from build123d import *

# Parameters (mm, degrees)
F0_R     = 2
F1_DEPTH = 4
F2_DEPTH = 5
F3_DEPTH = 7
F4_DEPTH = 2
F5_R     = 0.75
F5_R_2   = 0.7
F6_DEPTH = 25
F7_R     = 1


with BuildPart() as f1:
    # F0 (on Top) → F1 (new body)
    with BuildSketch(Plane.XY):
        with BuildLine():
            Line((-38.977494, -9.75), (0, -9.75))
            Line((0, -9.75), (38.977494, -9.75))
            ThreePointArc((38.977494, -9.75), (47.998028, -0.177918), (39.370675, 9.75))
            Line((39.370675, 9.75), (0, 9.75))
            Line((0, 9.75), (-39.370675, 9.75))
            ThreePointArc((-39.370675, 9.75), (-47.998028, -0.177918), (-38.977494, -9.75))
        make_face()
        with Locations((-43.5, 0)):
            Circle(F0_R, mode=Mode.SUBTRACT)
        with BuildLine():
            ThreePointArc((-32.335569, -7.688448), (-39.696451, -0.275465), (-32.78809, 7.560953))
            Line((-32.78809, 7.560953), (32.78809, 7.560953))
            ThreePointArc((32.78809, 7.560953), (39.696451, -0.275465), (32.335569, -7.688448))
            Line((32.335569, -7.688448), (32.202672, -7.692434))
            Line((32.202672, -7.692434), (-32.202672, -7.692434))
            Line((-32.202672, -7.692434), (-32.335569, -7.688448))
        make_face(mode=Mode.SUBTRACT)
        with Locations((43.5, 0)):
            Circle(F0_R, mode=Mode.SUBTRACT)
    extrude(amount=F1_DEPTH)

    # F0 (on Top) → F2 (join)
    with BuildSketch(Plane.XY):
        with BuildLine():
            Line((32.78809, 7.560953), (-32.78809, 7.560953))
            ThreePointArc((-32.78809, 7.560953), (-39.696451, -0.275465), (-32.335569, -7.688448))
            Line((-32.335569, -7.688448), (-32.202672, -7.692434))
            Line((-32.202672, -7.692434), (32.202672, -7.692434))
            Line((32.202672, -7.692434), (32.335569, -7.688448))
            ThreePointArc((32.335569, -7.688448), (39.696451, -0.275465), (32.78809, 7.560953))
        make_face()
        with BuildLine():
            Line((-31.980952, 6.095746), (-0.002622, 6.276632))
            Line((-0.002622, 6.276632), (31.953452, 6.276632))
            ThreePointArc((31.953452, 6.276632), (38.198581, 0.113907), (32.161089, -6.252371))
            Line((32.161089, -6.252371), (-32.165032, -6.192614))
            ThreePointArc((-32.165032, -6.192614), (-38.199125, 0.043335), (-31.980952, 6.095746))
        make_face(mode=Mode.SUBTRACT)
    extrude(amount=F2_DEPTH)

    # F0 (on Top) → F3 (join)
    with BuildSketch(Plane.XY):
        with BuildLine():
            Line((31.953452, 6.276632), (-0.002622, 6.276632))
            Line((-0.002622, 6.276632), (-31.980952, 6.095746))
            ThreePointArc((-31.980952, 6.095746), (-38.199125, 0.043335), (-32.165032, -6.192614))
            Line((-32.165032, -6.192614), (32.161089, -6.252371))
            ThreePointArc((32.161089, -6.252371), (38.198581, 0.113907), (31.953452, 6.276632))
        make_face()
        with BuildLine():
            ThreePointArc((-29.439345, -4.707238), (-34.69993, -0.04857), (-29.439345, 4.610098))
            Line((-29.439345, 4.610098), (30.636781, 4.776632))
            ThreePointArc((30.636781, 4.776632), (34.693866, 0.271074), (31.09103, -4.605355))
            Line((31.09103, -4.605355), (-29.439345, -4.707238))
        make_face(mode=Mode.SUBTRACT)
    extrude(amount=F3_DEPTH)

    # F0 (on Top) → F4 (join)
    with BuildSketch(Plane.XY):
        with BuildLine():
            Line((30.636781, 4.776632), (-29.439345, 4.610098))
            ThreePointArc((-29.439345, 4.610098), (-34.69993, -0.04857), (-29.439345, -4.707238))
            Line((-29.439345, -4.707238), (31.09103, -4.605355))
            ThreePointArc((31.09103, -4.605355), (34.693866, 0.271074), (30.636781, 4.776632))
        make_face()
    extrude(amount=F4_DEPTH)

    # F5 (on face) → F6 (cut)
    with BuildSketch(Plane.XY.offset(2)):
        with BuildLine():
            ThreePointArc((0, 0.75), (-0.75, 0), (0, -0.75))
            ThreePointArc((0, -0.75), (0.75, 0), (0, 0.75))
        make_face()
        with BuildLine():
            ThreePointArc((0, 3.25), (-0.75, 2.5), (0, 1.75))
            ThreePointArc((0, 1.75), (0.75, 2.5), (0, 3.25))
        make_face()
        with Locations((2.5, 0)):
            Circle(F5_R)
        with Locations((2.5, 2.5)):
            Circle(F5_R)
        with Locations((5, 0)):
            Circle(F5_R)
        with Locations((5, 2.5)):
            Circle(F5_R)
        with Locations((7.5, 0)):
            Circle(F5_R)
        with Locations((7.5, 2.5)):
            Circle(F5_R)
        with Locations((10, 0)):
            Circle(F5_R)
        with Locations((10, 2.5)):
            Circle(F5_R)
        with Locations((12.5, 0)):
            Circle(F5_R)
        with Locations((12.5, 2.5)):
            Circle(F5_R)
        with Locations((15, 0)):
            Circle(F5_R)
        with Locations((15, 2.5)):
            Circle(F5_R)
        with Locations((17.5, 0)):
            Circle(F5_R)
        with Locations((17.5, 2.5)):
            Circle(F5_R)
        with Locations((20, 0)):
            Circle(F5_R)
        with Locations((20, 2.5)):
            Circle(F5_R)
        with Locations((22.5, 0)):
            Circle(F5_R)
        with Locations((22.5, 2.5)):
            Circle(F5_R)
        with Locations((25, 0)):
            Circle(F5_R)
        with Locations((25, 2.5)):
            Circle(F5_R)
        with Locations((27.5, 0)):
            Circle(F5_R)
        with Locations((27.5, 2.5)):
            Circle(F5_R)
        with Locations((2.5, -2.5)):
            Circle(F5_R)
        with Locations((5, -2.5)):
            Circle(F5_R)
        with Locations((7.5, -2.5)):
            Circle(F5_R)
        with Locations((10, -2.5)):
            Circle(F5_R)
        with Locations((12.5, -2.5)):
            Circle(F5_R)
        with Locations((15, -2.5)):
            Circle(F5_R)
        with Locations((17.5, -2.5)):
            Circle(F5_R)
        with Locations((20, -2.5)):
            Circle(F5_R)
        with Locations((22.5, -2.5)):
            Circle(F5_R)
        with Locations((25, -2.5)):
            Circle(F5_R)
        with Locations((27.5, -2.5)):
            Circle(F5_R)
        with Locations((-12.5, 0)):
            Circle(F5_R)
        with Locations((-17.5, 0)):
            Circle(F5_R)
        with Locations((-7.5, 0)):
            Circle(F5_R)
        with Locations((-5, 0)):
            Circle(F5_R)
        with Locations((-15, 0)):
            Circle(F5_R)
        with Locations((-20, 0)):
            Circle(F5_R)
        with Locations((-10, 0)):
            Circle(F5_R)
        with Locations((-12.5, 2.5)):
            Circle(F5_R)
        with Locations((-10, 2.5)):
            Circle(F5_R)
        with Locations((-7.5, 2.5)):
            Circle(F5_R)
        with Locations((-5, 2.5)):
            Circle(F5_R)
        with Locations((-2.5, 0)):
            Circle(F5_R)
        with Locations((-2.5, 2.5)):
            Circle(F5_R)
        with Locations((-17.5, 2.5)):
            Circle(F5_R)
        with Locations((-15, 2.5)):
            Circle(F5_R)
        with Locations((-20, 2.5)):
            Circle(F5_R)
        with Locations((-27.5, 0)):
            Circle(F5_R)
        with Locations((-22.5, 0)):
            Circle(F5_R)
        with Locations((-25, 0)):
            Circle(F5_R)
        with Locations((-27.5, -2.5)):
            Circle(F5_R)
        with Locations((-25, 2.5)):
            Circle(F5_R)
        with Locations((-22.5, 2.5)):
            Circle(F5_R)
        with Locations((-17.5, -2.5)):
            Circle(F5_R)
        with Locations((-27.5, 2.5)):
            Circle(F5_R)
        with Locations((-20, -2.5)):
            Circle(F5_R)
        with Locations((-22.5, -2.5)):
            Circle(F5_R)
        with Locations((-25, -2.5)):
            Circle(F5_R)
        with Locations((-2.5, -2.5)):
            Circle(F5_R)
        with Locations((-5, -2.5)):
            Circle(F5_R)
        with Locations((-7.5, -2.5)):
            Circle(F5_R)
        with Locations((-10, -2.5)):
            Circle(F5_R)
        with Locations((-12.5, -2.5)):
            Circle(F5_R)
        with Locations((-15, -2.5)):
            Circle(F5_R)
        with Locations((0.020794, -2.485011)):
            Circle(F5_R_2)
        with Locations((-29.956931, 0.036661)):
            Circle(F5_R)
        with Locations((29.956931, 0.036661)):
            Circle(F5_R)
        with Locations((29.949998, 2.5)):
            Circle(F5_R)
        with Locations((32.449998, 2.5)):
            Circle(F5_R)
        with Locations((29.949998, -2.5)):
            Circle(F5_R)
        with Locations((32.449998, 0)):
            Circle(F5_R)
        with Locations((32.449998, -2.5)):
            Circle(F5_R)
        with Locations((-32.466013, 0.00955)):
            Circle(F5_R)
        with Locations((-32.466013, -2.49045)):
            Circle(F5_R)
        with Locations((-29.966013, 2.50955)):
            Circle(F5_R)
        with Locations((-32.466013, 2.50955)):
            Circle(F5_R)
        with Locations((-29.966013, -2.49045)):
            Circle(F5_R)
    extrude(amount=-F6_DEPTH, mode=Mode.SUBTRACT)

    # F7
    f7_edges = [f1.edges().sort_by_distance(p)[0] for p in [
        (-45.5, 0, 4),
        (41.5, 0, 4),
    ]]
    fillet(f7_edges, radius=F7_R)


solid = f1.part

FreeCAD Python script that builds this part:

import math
import FreeCAD as App
import Part
import Sketcher


def edges_at(feature, points):
    """Names of the edges that pass closest to the given points."""
    edges = feature.Shape.Edges
    near = lambda p: min(range(len(edges)), key=lambda i: edges[i].distToShape(Part.Vertex(*p))[0])
    return sorted({f"Edge{near(p) + 1}" for p in points})

doc = App.newDocument("Part")
body = doc.addObject("PartDesign::Body", "Body")

sketch1 = doc.addObject("Sketcher::SketchObject", "Sketch")
body.addObject(sketch1)
sketch1.AttachmentSupport = (doc.XY_Plane, [""])
sketch1.MapMode = "FlatFace"
sketch1.addGeometry([
    Part.LineSegment(App.Vector(-38.977494, -9.75, 0), App.Vector(38.977494, -9.75, 0)),
    Part.ArcOfCircle(Part.Circle(App.Vector(38.199434, 0.019652, 0), App.Vector(0, 0, 1), 9.800586), math.radians(-85.446546), math.radians(83.136335)),
    Part.LineSegment(App.Vector(39.370675, 9.75, 0), App.Vector(-39.370675, 9.75, 0)),
    Part.ArcOfCircle(Part.Circle(App.Vector(-38.199434, 0.019652, 0), App.Vector(0, 0, 1), 9.800586), math.radians(96.863665), math.radians(265.446546)),
    Part.Circle(App.Vector(-43.5, 0, 0), App.Vector(0, 0, 1), 2),
    Part.LineSegment(App.Vector(-32.202672, -7.692434, 0), App.Vector(-32.335569, -7.688448, 0)),
    Part.ArcOfCircle(Part.Circle(App.Vector(-32.054919, -0.048705, 0), App.Vector(0, 0, 1), 7.644896), math.radians(95.503317), math.radians(267.896153)),
    Part.LineSegment(App.Vector(-32.78809, 7.560953, 0), App.Vector(32.78809, 7.560953, 0)),
    Part.ArcOfCircle(Part.Circle(App.Vector(32.054919, -0.048705, 0), App.Vector(0, 0, 1), 7.644896), math.radians(-87.896153), math.radians(84.496683)),
    Part.LineSegment(App.Vector(32.335569, -7.688448, 0), App.Vector(32.202672, -7.692434, 0)),
    Part.LineSegment(App.Vector(32.202672, -7.692434, 0), App.Vector(-32.202672, -7.692434, 0)),
    Part.Circle(App.Vector(43.5, 0, 0), App.Vector(0, 0, 1), 2),
], False)
sketch1.addConstraint([
    Sketcher.Constraint("Coincident", 0, 2, 1, 1),
    Sketcher.Constraint("Coincident", 1, 2, 2, 1),
    Sketcher.Constraint("Coincident", 2, 2, 3, 1),
    Sketcher.Constraint("Coincident", 3, 2, 0, 1),
    Sketcher.Constraint("Coincident", 5, 2, 6, 2),
    Sketcher.Constraint("Coincident", 6, 1, 7, 1),
    Sketcher.Constraint("Coincident", 7, 2, 8, 2),
    Sketcher.Constraint("Coincident", 8, 1, 9, 1),
    Sketcher.Constraint("Coincident", 9, 2, 10, 1),
    Sketcher.Constraint("Coincident", 10, 2, 5, 1),
    Sketcher.Constraint("Horizontal", 0),
    Sketcher.Constraint("Horizontal", 2),
    Sketcher.Constraint("Horizontal", 7),
    Sketcher.Constraint("Horizontal", 10),
    Sketcher.Constraint("Equal", 1, 3),
    Sketcher.Constraint("Equal", 6, 8),
    Sketcher.Constraint("Equal", 4, 11),
    Sketcher.Constraint("Symmetric", 4, 3, 11, 3, -1, 1),
    Sketcher.Constraint("Symmetric", 1, 3, 3, 3, -2),
    Sketcher.Constraint("Symmetric", 6, 3, 8, 3, -2),
    Sketcher.Constraint("PointOnObject", 4, 3, -1),
    Sketcher.Constraint("Horizontal", 5, 2, 8, 1),
    Sketcher.Constraint("Equal", 5, 9),
    Sketcher.Constraint("Diameter", 4, 4.0),
    Sketcher.Constraint("DistanceX", 4, 3, 11, 3, 87.0),
    Sketcher.Constraint("DistanceY", 0, 2, 1, 2, 19.5),
    Sketcher.Constraint("DistanceY", 0, 2, -1, 1, 9.75),
    Sketcher.Constraint("Radius", 1, 9.800586),
    Sketcher.Constraint("Radius", 6, 7.644896),
    Sketcher.Constraint("DistanceX", 0, 1, 0, 2, 77.954988),
    Sketcher.Constraint("DistanceX", 2, 2, 2, 1, 78.74135),
    Sketcher.Constraint("DistanceX", 7, 1, 7, 2, 65.57618),
    Sketcher.Constraint("DistanceY", 5, 2, 3, 3, 7.7081),
    Sketcher.Constraint("DistanceY", 3, 3, 6, 1, 7.541301),
    Sketcher.Constraint("DistanceX", 10, 2, 10, 1, 64.405344),
    Sketcher.Constraint("DistanceX", 6, 3, -1, 1, 32.054919),
    Sketcher.Constraint("DistanceY", 9, 2, 8, 3, 7.643729),
])
pad1 = doc.addObject("PartDesign::Pad", "Pad")
body.addObject(pad1)
pad1.Profile = sketch1
pad1.Length = 4

sketch2 = doc.addObject("Sketcher::SketchObject", "Sketch001")
body.addObject(sketch2)
sketch2.AttachmentSupport = (doc.XY_Plane, [""])
sketch2.MapMode = "FlatFace"
sketch2.addGeometry([
    Part.LineSegment(App.Vector(32.78809, 7.560953, 0), App.Vector(-32.78809, 7.560953, 0)),
    Part.ArcOfCircle(Part.Circle(App.Vector(-32.054919, -0.048705, 0), App.Vector(0, 0, 1), 7.644896), math.radians(95.503317), math.radians(267.896153)),
    Part.LineSegment(App.Vector(-32.335569, -7.688448, 0), App.Vector(-32.202672, -7.692434, 0)),
    Part.LineSegment(App.Vector(-32.202672, -7.692434, 0), App.Vector(32.202672, -7.692434, 0)),
    Part.LineSegment(App.Vector(32.202672, -7.692434, 0), App.Vector(32.335569, -7.688448, 0)),
    Part.ArcOfCircle(Part.Circle(App.Vector(32.054919, -0.048705, 0), App.Vector(0, 0, 1), 7.644896), math.radians(-87.896153), math.radians(84.496683)),
    Part.ArcOfCircle(Part.Circle(App.Vector(-32.054918, -0.048705, 0), App.Vector(0, 0, 1), 6.144896), math.radians(89.310311), math.radians(268.973232)),
    Part.LineSegment(App.Vector(-31.980952, 6.095746, 0), App.Vector(-0.002622, 6.276632, 0)),
    Part.LineSegment(App.Vector(-0.002622, 6.276632, 0), App.Vector(31.953452, 6.276632, 0)),
    Part.ArcOfCircle(Part.Circle(App.Vector(31.932844, 0.010068, 0), App.Vector(0, 0, 1), 6.266597), math.radians(-87.912683), math.radians(89.811579)),
    Part.LineSegment(App.Vector(32.161089, -6.252371, 0), App.Vector(-32.165032, -6.192614, 0)),
], False)
sketch2.addConstraint([
    Sketcher.Constraint("Coincident", 0, 2, 1, 1),
    Sketcher.Constraint("Coincident", 1, 2, 2, 1),
    Sketcher.Constraint("Coincident", 2, 2, 3, 1),
    Sketcher.Constraint("Coincident", 3, 2, 4, 1),
    Sketcher.Constraint("Coincident", 4, 2, 5, 1),
    Sketcher.Constraint("Coincident", 5, 2, 0, 1),
    Sketcher.Constraint("Coincident", 6, 1, 7, 1),
    Sketcher.Constraint("Coincident", 7, 2, 8, 1),
    Sketcher.Constraint("Coincident", 8, 2, 9, 2),
    Sketcher.Constraint("Coincident", 9, 1, 10, 1),
    Sketcher.Constraint("Coincident", 10, 2, 6, 2),
    Sketcher.Constraint("Horizontal", 0),
    Sketcher.Constraint("Horizontal", 3),
    Sketcher.Constraint("Horizontal", 8),
    Sketcher.Constraint("Coincident", 6, 3, 1, 3),
    Sketcher.Constraint("Equal", 1, 5),
    Sketcher.Constraint("Symmetric", 1, 3, 5, 3, -2),
    Sketcher.Constraint("Horizontal", 1, 2, 4, 2),
    Sketcher.Constraint("Equal", 2, 4),
    Sketcher.Constraint("Radius", 1, 7.644896),
    Sketcher.Constraint("Radius", 6, 6.144896),
    Sketcher.Constraint("Radius", 9, 6.266597),
    Sketcher.Constraint("DistanceX", 0, 2, 0, 1, 65.57618),
    Sketcher.Constraint("DistanceY", 1, 2, 0, 2, 15.249401),
    Sketcher.Constraint("Distance", 7, 31.978842),
    Sketcher.Constraint("Distance", 10, 64.326149),
    Sketcher.Constraint("DistanceX", 3, 1, 3, 2, 64.405344),
    Sketcher.Constraint("DistanceX", 8, 1, 8, 2, 31.956074),
    Sketcher.Constraint("DistanceX", 1, 3, -1, 1, 32.054919),
    Sketcher.Constraint("DistanceY", -1, 1, 9, 3, 0.010068),
    Sketcher.Constraint("DistanceY", 1, 2, -1, 1, 7.688448),
    Sketcher.Constraint("DistanceX", 6, 1, -1, 1, 31.980952),
    Sketcher.Constraint("DistanceX", -1, 1, 9, 1, 32.161089),
    Sketcher.Constraint("DistanceY", 9, 1, -1, 1, 6.252371),
    Sketcher.Constraint("DistanceY", 2, 2, 1, 3, 7.643729),
])
pad2 = doc.addObject("PartDesign::Pad", "Pad001")
body.addObject(pad2)
pad2.Profile = sketch2
pad2.Length = 5

sketch3 = doc.addObject("Sketcher::SketchObject", "Sketch002")
body.addObject(sketch3)
sketch3.AttachmentSupport = (doc.XY_Plane, [""])
sketch3.MapMode = "FlatFace"
sketch3.addGeometry([
    Part.LineSegment(App.Vector(31.953452, 6.276632, 0), App.Vector(-0.002622, 6.276632, 0)),
    Part.LineSegment(App.Vector(-0.002622, 6.276632, 0), App.Vector(-31.980952, 6.095746, 0)),
    Part.ArcOfCircle(Part.Circle(App.Vector(-32.054918, -0.048705, 0), App.Vector(0, 0, 1), 6.144896), math.radians(89.310311), math.radians(268.973232)),
    Part.LineSegment(App.Vector(-32.165032, -6.192614, 0), App.Vector(32.161089, -6.252371, 0)),
    Part.ArcOfCircle(Part.Circle(App.Vector(31.932844, 0.010068, 0), App.Vector(0, 0, 1), 6.266597), math.radians(-87.912683), math.radians(89.811579)),
    Part.LineSegment(App.Vector(31.09103, -4.605355, 0), App.Vector(-29.439345, -4.707238, 0)),
    Part.ArcOfCircle(Part.Circle(App.Vector(-30.006826, -0.04857, 0), App.Vector(0, 0, 1), 4.693104), math.radians(83.054907), math.radians(276.945093)),
    Part.LineSegment(App.Vector(-29.439345, 4.610098, 0), App.Vector(30.636781, 4.776632, 0)),
    Part.ArcOfCircle(Part.Circle(App.Vector(29.906086, 0.039264, 0), App.Vector(0, 0, 1), 4.793389), math.radians(-75.687888), math.radians(81.231755)),
], False)
sketch3.addConstraint([
    Sketcher.Constraint("Coincident", 0, 2, 1, 1),
    Sketcher.Constraint("Coincident", 1, 2, 2, 1),
    Sketcher.Constraint("Coincident", 2, 2, 3, 1),
    Sketcher.Constraint("Coincident", 3, 2, 4, 1),
    Sketcher.Constraint("Coincident", 4, 2, 0, 1),
    Sketcher.Constraint("Coincident", 5, 2, 6, 2),
    Sketcher.Constraint("Coincident", 6, 1, 7, 1),
    Sketcher.Constraint("Coincident", 7, 2, 8, 2),
    Sketcher.Constraint("Coincident", 8, 1, 5, 1),
    Sketcher.Constraint("Horizontal", 0),
    Sketcher.Constraint("Vertical", 5, 2, 6, 1),
    Sketcher.Constraint("DistanceY", 7, 2, 4, 2, 1.5),
    Sketcher.Constraint("Radius", 8, 4.793389),
    Sketcher.Constraint("Radius", 2, 6.144896),
    Sketcher.Constraint("Radius", 4, 6.266597),
    Sketcher.Constraint("Radius", 6, 4.693104),
    Sketcher.Constraint("DistanceY", 3, 2, 6, 3, 6.203801),
    Sketcher.Constraint("Distance", 1, 31.978842),
    Sketcher.Constraint("Distance", 3, 64.326149),
    Sketcher.Constraint("Distance", 5, 60.530461),
    Sketcher.Constraint("DistanceX", 0, 2, 0, 1, 31.956074),
    Sketcher.Constraint("DistanceX", 2, 3, -1, 1, 32.054918),
    Sketcher.Constraint("DistanceY", -1, 1, 4, 3, 0.010068),
    Sketcher.Constraint("DistanceY", 6, 3, -1, 1, 0.04857),
    Sketcher.Constraint("DistanceX", 1, 2, -1, 1, 31.980952),
    Sketcher.Constraint("DistanceX", -1, 1, 3, 2, 32.161089),
    Sketcher.Constraint("DistanceY", 5, 2, -1, 1, 4.707238),
    Sketcher.Constraint("DistanceX", -1, 1, 7, 2, 30.636781),
    Sketcher.Constraint("DistanceX", -1, 1, 8, 1, 31.09103),
    Sketcher.Constraint("DistanceX", 8, 3, 4, 3, 2.026758),
    Sketcher.Constraint("DistanceY", 2, 3, 8, 3, 0.087968),
])
pad3 = doc.addObject("PartDesign::Pad", "Pad002")
body.addObject(pad3)
pad3.Profile = sketch3
pad3.Length = 7

sketch4 = doc.addObject("Sketcher::SketchObject", "Sketch003")
body.addObject(sketch4)
sketch4.AttachmentSupport = (doc.XY_Plane, [""])
sketch4.MapMode = "FlatFace"
sketch4.addGeometry([
    Part.LineSegment(App.Vector(30.636781, 4.776632, 0), App.Vector(-29.439345, 4.610098, 0)),
    Part.ArcOfCircle(Part.Circle(App.Vector(-30.006826, -0.04857, 0), App.Vector(0, 0, 1), 4.693104), math.radians(83.054907), math.radians(276.945093)),
    Part.LineSegment(App.Vector(-29.439345, -4.707238, 0), App.Vector(31.09103, -4.605355, 0)),
    Part.ArcOfCircle(Part.Circle(App.Vector(29.906086, 0.039264, 0), App.Vector(0, 0, 1), 4.793389), math.radians(-75.687888), math.radians(81.231755)),
], False)
sketch4.addConstraint([
    Sketcher.Constraint("Coincident", 0, 2, 1, 1),
    Sketcher.Constraint("Coincident", 1, 2, 2, 1),
    Sketcher.Constraint("Coincident", 2, 2, 3, 1),
    Sketcher.Constraint("Coincident", 3, 2, 0, 1),
    Sketcher.Constraint("Vertical", 0, 2, 1, 2),
    Sketcher.Constraint("Radius", 3, 4.793389),
    Sketcher.Constraint("Radius", 1, 4.693104),
    Sketcher.Constraint("DistanceY", 1, 2, 3, 3, 4.746502),
    Sketcher.Constraint("DistanceY", 1, 3, 3, 2, 4.825202),
    Sketcher.Constraint("Distance", 2, 60.530461),
    Sketcher.Constraint("DistanceY", 1, 3, -1, 1, 0.04857),
    Sketcher.Constraint("DistanceX", -1, 1, 2, 2, 31.09103),
    Sketcher.Constraint("DistanceX", -1, 1, 3, 2, 30.636781),
    Sketcher.Constraint("DistanceX", 1, 3, 0, 2, 0.567481),
])
pad4 = doc.addObject("PartDesign::Pad", "Pad003")
body.addObject(pad4)
pad4.Profile = sketch4
pad4.Length = 2

sketch5 = doc.addObject("Sketcher::SketchObject", "Sketch004")
body.addObject(sketch5)
sketch5.AttachmentSupport = (doc.XY_Plane, [""])
sketch5.MapMode = "FlatFace"
sketch5.AttachmentOffset = App.Placement(App.Vector(0, 0, 2), App.Rotation())
sketch5.addGeometry([
    Part.Circle(App.Vector(0, 0, 0), App.Vector(0, 0, 1), 0.75),
    Part.Circle(App.Vector(0, 2.5, 0), App.Vector(0, 0, 1), 0.75),
    Part.Circle(App.Vector(2.5, 0, 0), App.Vector(0, 0, 1), 0.75),
    Part.Circle(App.Vector(2.5, 2.5, 0), App.Vector(0, 0, 1), 0.75),
    Part.Circle(App.Vector(5, 0, 0), App.Vector(0, 0, 1), 0.75),
    Part.Circle(App.Vector(5, 2.5, 0), App.Vector(0, 0, 1), 0.75),
    Part.Circle(App.Vector(7.5, 0, 0), App.Vector(0, 0, 1), 0.75),
    Part.Circle(App.Vector(7.5, 2.5, 0), App.Vector(0, 0, 1), 0.75),
    Part.Circle(App.Vector(10, 0, 0), App.Vector(0, 0, 1), 0.75),
    Part.Circle(App.Vector(10, 2.5, 0), App.Vector(0, 0, 1), 0.75),
    Part.Circle(App.Vector(12.5, 0, 0), App.Vector(0, 0, 1), 0.75),
    Part.Circle(App.Vector(12.5, 2.5, 0), App.Vector(0, 0, 1), 0.75),
    Part.Circle(App.Vector(15, 0, 0), App.Vector(0, 0, 1), 0.75),
    Part.Circle(App.Vector(15, 2.5, 0), App.Vector(0, 0, 1), 0.75),
    Part.Circle(App.Vector(17.5, 0, 0), App.Vector(0, 0, 1), 0.75),
    Part.Circle(App.Vector(17.5, 2.5, 0), App.Vector(0, 0, 1), 0.75),
    Part.Circle(App.Vector(20, 0, 0), App.Vector(0, 0, 1), 0.75),
    Part.Circle(App.Vector(20, 2.5, 0), App.Vector(0, 0, 1), 0.75),
    Part.Circle(App.Vector(22.5, 0, 0), App.Vector(0, 0, 1), 0.75),
    Part.Circle(App.Vector(22.5, 2.5, 0), App.Vector(0, 0, 1), 0.75),
    Part.Circle(App.Vector(25, 0, 0), App.Vector(0, 0, 1), 0.75),
    Part.Circle(App.Vector(25, 2.5, 0), App.Vector(0, 0, 1), 0.75),
    Part.Circle(App.Vector(27.5, 0, 0), App.Vector(0, 0, 1), 0.75),
    Part.Circle(App.Vector(27.5, 2.5, 0), App.Vector(0, 0, 1), 0.75),
    Part.Circle(App.Vector(2.5, -2.5, 0), App.Vector(0, 0, 1), 0.75),
    Part.Circle(App.Vector(5, -2.5, 0), App.Vector(0, 0, 1), 0.75),
    Part.Circle(App.Vector(7.5, -2.5, 0), App.Vector(0, 0, 1), 0.75),
    Part.Circle(App.Vector(10, -2.5, 0), App.Vector(0, 0, 1), 0.75),
    Part.Circle(App.Vector(12.5, -2.5, 0), App.Vector(0, 0, 1), 0.75),
    Part.Circle(App.Vector(15, -2.5, 0), App.Vector(0, 0, 1), 0.75),
    Part.Circle(App.Vector(17.5, -2.5, 0), App.Vector(0, 0, 1), 0.75),
    Part.Circle(App.Vector(20, -2.5, 0), App.Vector(0, 0, 1), 0.75),
    Part.Circle(App.Vector(22.5, -2.5, 0), App.Vector(0, 0, 1), 0.75),
    Part.Circle(App.Vector(25, -2.5, 0), App.Vector(0, 0, 1), 0.75),
    Part.Circle(App.Vector(27.5, -2.5, 0), App.Vector(0, 0, 1), 0.75),
    Part.Circle(App.Vector(-12.5, 0, 0), App.Vector(0, 0, 1), 0.75),
    Part.Circle(App.Vector(-17.5, 0, 0), App.Vector(0, 0, 1), 0.75),
    Part.Circle(App.Vector(-7.5, 0, 0), App.Vector(0, 0, 1), 0.75),
    Part.Circle(App.Vector(-5, 0, 0), App.Vector(0, 0, 1), 0.75),
    Part.Circle(App.Vector(-15, 0, 0), App.Vector(0, 0, 1), 0.75),
    Part.Circle(App.Vector(-20, 0, 0), App.Vector(0, 0, 1), 0.75),
    Part.Circle(App.Vector(-10, 0, 0), App.Vector(0, 0, 1), 0.75),
    Part.Circle(App.Vector(-12.5, 2.5, 0), App.Vector(0, 0, 1), 0.75),
    Part.Circle(App.Vector(-10, 2.5, 0), App.Vector(0, 0, 1), 0.75),
    Part.Circle(App.Vector(-7.5, 2.5, 0), App.Vector(0, 0, 1), 0.75),
    Part.Circle(App.Vector(-5, 2.5, 0), App.Vector(0, 0, 1), 0.75),
    Part.Circle(App.Vector(-2.5, 0, 0), App.Vector(0, 0, 1), 0.75),
    Part.Circle(App.Vector(-2.5, 2.5, 0), App.Vector(0, 0, 1), 0.75),
    Part.Circle(App.Vector(-17.5, 2.5, 0), App.Vector(0, 0, 1), 0.75),
    Part.Circle(App.Vector(-15, 2.5, 0), App.Vector(0, 0, 1), 0.75),
    Part.Circle(App.Vector(-20, 2.5, 0), App.Vector(0, 0, 1), 0.75),
    Part.Circle(App.Vector(-27.5, 0, 0), App.Vector(0, 0, 1), 0.75),
    Part.Circle(App.Vector(-22.5, 0, 0), App.Vector(0, 0, 1), 0.75),
    Part.Circle(App.Vector(-25, 0, 0), App.Vector(0, 0, 1), 0.75),
    Part.Circle(App.Vector(-27.5, -2.5, 0), App.Vector(0, 0, 1), 0.75),
    Part.Circle(App.Vector(-25, 2.5, 0), App.Vector(0, 0, 1), 0.75),
    Part.Circle(App.Vector(-22.5, 2.5, 0), App.Vector(0, 0, 1), 0.75),
    Part.Circle(App.Vector(-17.5, -2.5, 0), App.Vector(0, 0, 1), 0.75),
    Part.Circle(App.Vector(-27.5, 2.5, 0), App.Vector(0, 0, 1), 0.75),
    Part.Circle(App.Vector(-20, -2.5, 0), App.Vector(0, 0, 1), 0.75),
    Part.Circle(App.Vector(-22.5, -2.5, 0), App.Vector(0, 0, 1), 0.75),
    Part.Circle(App.Vector(-25, -2.5, 0), App.Vector(0, 0, 1), 0.75),
    Part.Circle(App.Vector(-2.5, -2.5, 0), App.Vector(0, 0, 1), 0.75),
    Part.Circle(App.Vector(-5, -2.5, 0), App.Vector(0, 0, 1), 0.75),
    Part.Circle(App.Vector(-7.5, -2.5, 0), App.Vector(0, 0, 1), 0.75),
    Part.Circle(App.Vector(-10, -2.5, 0), App.Vector(0, 0, 1), 0.75),
    Part.Circle(App.Vector(-12.5, -2.5, 0), App.Vector(0, 0, 1), 0.75),
    Part.Circle(App.Vector(-15, -2.5, 0), App.Vector(0, 0, 1), 0.75),
    Part.Circle(App.Vector(0.020794, -2.485011, 0), App.Vector(0, 0, 1), 0.7),
    Part.Circle(App.Vector(-29.956931, 0.036661, 0), App.Vector(0, 0, 1), 0.75),
    Part.Circle(App.Vector(29.956931, 0.036661, 0), App.Vector(0, 0, 1), 0.75),
    Part.Circle(App.Vector(29.949998, 2.5, 0), App.Vector(0, 0, 1), 0.75),
    Part.Circle(App.Vector(32.449998, 2.5, 0), App.Vector(0, 0, 1), 0.75),
    Part.Circle(App.Vector(29.949998, -2.5, 0), App.Vector(0, 0, 1), 0.75),
    Part.Circle(App.Vector(32.449998, 0, 0), App.Vector(0, 0, 1), 0.75),
    Part.Circle(App.Vector(32.449998, -2.5, 0), App.Vector(0, 0, 1), 0.75),
    Part.Circle(App.Vector(-32.466013, 0.00955, 0), App.Vector(0, 0, 1), 0.75),
    Part.Circle(App.Vector(-32.466013, -2.49045, 0), App.Vector(0, 0, 1), 0.75),
    Part.Circle(App.Vector(-29.966013, 2.50955, 0), App.Vector(0, 0, 1), 0.75),
    Part.Circle(App.Vector(-32.466013, 2.50955, 0), App.Vector(0, 0, 1), 0.75),
    Part.Circle(App.Vector(-29.966013, -2.49045, 0), App.Vector(0, 0, 1), 0.75),
], False)
sketch5.addConstraint([
    Sketcher.Constraint("Coincident", 0, 3, -1, 1),
    Sketcher.Constraint("Equal", 0, 1),
    Sketcher.Constraint("Equal", 1, 2),
    Sketcher.Constraint("Equal", 2, 3),
    Sketcher.Constraint("Equal", 3, 4),
    Sketcher.Constraint("Equal", 4, 5),
    Sketcher.Constraint("Equal", 5, 6),
    Sketcher.Constraint("Equal", 6, 7),
    Sketcher.Constraint("Equal", 7, 8),
    Sketcher.Constraint("Equal", 8, 9),
    Sketcher.Constraint("Equal", 9, 10),
    Sketcher.Constraint("Equal", 10, 11),
    Sketcher.Constraint("Equal", 11, 12),
    Sketcher.Constraint("Equal", 12, 13),
    Sketcher.Constraint("Equal", 13, 14),
    Sketcher.Constraint("Equal", 14, 15),
    Sketcher.Constraint("Equal", 15, 16),
    Sketcher.Constraint("Equal", 16, 17),
    Sketcher.Constraint("Equal", 17, 18),
    Sketcher.Constraint("Equal", 18, 19),
    Sketcher.Constraint("Equal", 19, 20),
    Sketcher.Constraint("Equal", 20, 21),
    Sketcher.Constraint("Equal", 21, 22),
    Sketcher.Constraint("Equal", 22, 23),
    Sketcher.Constraint("Equal", 23, 24),
    Sketcher.Constraint("Equal", 24, 25),
    Sketcher.Constraint("Equal", 25, 26),
    Sketcher.Constraint("Equal", 26, 27),
    Sketcher.Constraint("Equal", 27, 28),
    Sketcher.Constraint("Equal", 28, 29),
    Sketcher.Constraint("Equal", 29, 30),
    Sketcher.Constraint("Equal", 30, 31),
    Sketcher.Constraint("Equal", 31, 32),
    Sketcher.Constraint("Equal", 32, 33),
    Sketcher.Constraint("Equal", 33, 34),
    Sketcher.Constraint("Equal", 34, 35),
    Sketcher.Constraint("Equal", 35, 36),
    Sketcher.Constraint("Equal", 36, 37),
    Sketcher.Constraint("Equal", 37, 38),
    Sketcher.Constraint("Equal", 38, 39),
    Sketcher.Constraint("Equal", 39, 40),
    Sketcher.Constraint("Equal", 40, 41),
    Sketcher.Constraint("Equal", 41, 42),
    Sketcher.Constraint("Equal", 42, 43),
    Sketcher.Constraint("Equal", 43, 44),
    Sketcher.Constraint("Equal", 44, 45),
    Sketcher.Constraint("Equal", 45, 46),
    Sketcher.Constraint("Equal", 46, 47),
    Sketcher.Constraint("Equal", 47, 48),
    Sketcher.Constraint("Equal", 48, 49),
    Sketcher.Constraint("Equal", 49, 50),
    Sketcher.Constraint("Equal", 50, 51),
    Sketcher.Constraint("Equal", 51, 52),
    Sketcher.Constraint("Equal", 52, 53),
    Sketcher.Constraint("Equal", 53, 54),
    Sketcher.Constraint("Equal", 54, 55),
    Sketcher.Constraint("Equal", 55, 56),
    Sketcher.Constraint("Equal", 56, 57),
    Sketcher.Constraint("Equal", 57, 58),
    Sketcher.Constraint("Equal", 58, 59),
    Sketcher.Constraint("Equal", 59, 60),
    Sketcher.Constraint("Equal", 60, 61),
    Sketcher.Constraint("Equal", 61, 62),
    Sketcher.Constraint("Equal", 62, 63),
    Sketcher.Constraint("Equal", 63, 64),
    Sketcher.Constraint("Equal", 64, 65),
    Sketcher.Constraint("Equal", 65, 66),
    Sketcher.Constraint("Equal", 66, 67),
    Sketcher.Constraint("Equal", 67, 69),
    Sketcher.Constraint("Equal", 69, 70),
    Sketcher.Constraint("Equal", 70, 71),
    Sketcher.Constraint("Equal", 71, 72),
    Sketcher.Constraint("Equal", 72, 73),
    Sketcher.Constraint("Equal", 73, 74),
    Sketcher.Constraint("Equal", 74, 75),
    Sketcher.Constraint("Equal", 75, 76),
    Sketcher.Constraint("Equal", 76, 77),
    Sketcher.Constraint("Equal", 77, 78),
    Sketcher.Constraint("Equal", 78, 79),
    Sketcher.Constraint("Equal", 79, 80),
    Sketcher.Constraint("Symmetric", 10, 3, 35, 3, -1, 1),
    Sketcher.Constraint("Symmetric", 14, 3, 36, 3, -1, 1),
    Sketcher.Constraint("Symmetric", 6, 3, 37, 3, -1, 1),
    Sketcher.Constraint("Symmetric", 4, 3, 38, 3, -1, 1),
    Sketcher.Constraint("Symmetric", 12, 3, 39, 3, -1, 1),
    Sketcher.Constraint("Symmetric", 16, 3, 40, 3, -1, 1),
    Sketcher.Constraint("Symmetric", 8, 3, 41, 3, -1, 1),
    Sketcher.Constraint("Symmetric", 28, 3, 42, 3, -1, 1),
    Sketcher.Constraint("Symmetric", 27, 3, 43, 3, -1, 1),
    Sketcher.Constraint("Symmetric", 26, 3, 44, 3, -1, 1),
    Sketcher.Constraint("Symmetric", 25, 3, 45, 3, -1, 1),
    Sketcher.Constraint("Symmetric", 2, 3, 46, 3, -1, 1),
    Sketcher.Constraint("Symmetric", 24, 3, 47, 3, -1, 1),
    Sketcher.Constraint("Symmetric", 30, 3, 48, 3, -1, 1),
    Sketcher.Constraint("Symmetric", 29, 3, 49, 3, -1, 1),
    Sketcher.Constraint("Symmetric", 31, 3, 50, 3, -1, 1),
    Sketcher.Constraint("Symmetric", 22, 3, 51, 3, -1, 1),
    Sketcher.Constraint("Symmetric", 18, 3, 52, 3, -1, 1),
    Sketcher.Constraint("Symmetric", 20, 3, 53, 3, -1, 1),
    Sketcher.Constraint("Symmetric", 23, 3, 54, 3, -1, 1),
    Sketcher.Constraint("Symmetric", 33, 3, 55, 3, -1, 1),
    Sketcher.Constraint("Symmetric", 32, 3, 56, 3, -1, 1),
    Sketcher.Constraint("Symmetric", 15, 3, 57, 3, -1, 1),
    Sketcher.Constraint("Symmetric", 34, 3, 58, 3, -1, 1),
    Sketcher.Constraint("Symmetric", 17, 3, 59, 3, -1, 1),
    Sketcher.Constraint("Symmetric", 19, 3, 60, 3, -1, 1),
    Sketcher.Constraint("Symmetric", 21, 3, 61, 3, -1, 1),
    Sketcher.Constraint("Symmetric", 3, 3, 62, 3, -1, 1),
    Sketcher.Constraint("Symmetric", 5, 3, 63, 3, -1, 1),
    Sketcher.Constraint("Symmetric", 7, 3, 64, 3, -1, 1),
    Sketcher.Constraint("Symmetric", 9, 3, 65, 3, -1, 1),
    Sketcher.Constraint("Symmetric", 11, 3, 66, 3, -1, 1),
    Sketcher.Constraint("Symmetric", 13, 3, 67, 3, -1, 1),
    Sketcher.Constraint("Symmetric", 11, 3, 42, 3, -2),
    Sketcher.Constraint("Symmetric", 9, 3, 43, 3, -2),
    Sketcher.Constraint("Symmetric", 7, 3, 44, 3, -2),
    Sketcher.Constraint("Symmetric", 5, 3, 45, 3, -2),
    Sketcher.Constraint("Symmetric", 3, 3, 47, 3, -2),
    Sketcher.Constraint("Symmetric", 15, 3, 48, 3, -2),
    Sketcher.Constraint("Symmetric", 13, 3, 49, 3, -2),
    Sketcher.Constraint("Symmetric", 17, 3, 50, 3, -2),
    Sketcher.Constraint("Symmetric", 34, 3, 54, 3, -2),
    Sketcher.Constraint("Symmetric", 21, 3, 55, 3, -2),
    Sketcher.Constraint("Symmetric", 19, 3, 56, 3, -2),
    Sketcher.Constraint("Symmetric", 69, 3, 70, 3, -2),
    Sketcher.Constraint("Symmetric", 71, 3, 73, 3, -1),
    Sketcher.Constraint("Symmetric", 72, 3, 75, 3, -1),
    Sketcher.Constraint("PointOnObject", 1, 3, -2),
    Sketcher.Constraint("PointOnObject", 2, 3, -1),
    Sketcher.Constraint("PointOnObject", 4, 3, -1),
    Sketcher.Constraint("PointOnObject", 6, 3, -1),
    Sketcher.Constraint("PointOnObject", 8, 3, -1),
    Sketcher.Constraint("PointOnObject", 10, 3, -1),
    Sketcher.Constraint("PointOnObject", 12, 3, -1),
    Sketcher.Constraint("PointOnObject", 14, 3, -1),
    Sketcher.Constraint("PointOnObject", 16, 3, -1),
    Sketcher.Constraint("PointOnObject", 18, 3, -1),
    Sketcher.Constraint("PointOnObject", 20, 3, -1),
    Sketcher.Constraint("PointOnObject", 22, 3, -1),
    Sketcher.Constraint("PointOnObject", 74, 3, -1),
    Sketcher.Constraint("Horizontal", 1, 3, 3, 3),
    Sketcher.Constraint("Horizontal", 3, 3, 5, 3),
    Sketcher.Constraint("Horizontal", 5, 3, 7, 3),
    Sketcher.Constraint("Horizontal", 7, 3, 9, 3),
    Sketcher.Constraint("Horizontal", 9, 3, 11, 3),
    Sketcher.Constraint("Horizontal", 11, 3, 13, 3),
    Sketcher.Constraint("Horizontal", 13, 3, 15, 3),
    Sketcher.Constraint("Horizontal", 15, 3, 17, 3),
    Sketcher.Constraint("Horizontal", 17, 3, 19, 3),
    Sketcher.Constraint("Horizontal", 19, 3, 21, 3),
    Sketcher.Constraint("Horizontal", 21, 3, 23, 3),
    Sketcher.Constraint("Horizontal", 58, 3, 71, 3),
    Sketcher.Constraint("Horizontal", 71, 3, 72, 3),
    Sketcher.Constraint("Horizontal", 78, 3, 79, 3),
    Sketcher.Constraint("Horizontal", 77, 3, 80, 3),
    Sketcher.Constraint("Vertical", 2, 3, 3, 3),
    Sketcher.Constraint("Vertical", 4, 3, 5, 3),
    Sketcher.Constraint("Vertical", 6, 3, 7, 3),
    Sketcher.Constraint("Vertical", 8, 3, 9, 3),
    Sketcher.Constraint("Vertical", 10, 3, 11, 3),
    Sketcher.Constraint("Vertical", 12, 3, 13, 3),
    Sketcher.Constraint("Vertical", 14, 3, 15, 3),
    Sketcher.Constraint("Vertical", 16, 3, 17, 3),
    Sketcher.Constraint("Vertical", 18, 3, 19, 3),
    Sketcher.Constraint("Vertical", 20, 3, 21, 3),
    Sketcher.Constraint("Vertical", 22, 3, 23, 3),
    Sketcher.Constraint("Vertical", 72, 3, 74, 3),
    Sketcher.Constraint("Vertical", 76, 3, 77, 3),
    Sketcher.Constraint("Vertical", 77, 3, 79, 3),
    Sketcher.Constraint("Vertical", 78, 3, 80, 3),
    Sketcher.Constraint("Diameter", 0, 1.5),
    Sketcher.Constraint("Diameter", 68, 1.4),
    Sketcher.Constraint("DistanceX", -1, 1, 4, 3, 5.0),
    Sketcher.Constraint("DistanceX", -1, 1, 8, 3, 10.0),
    Sketcher.Constraint("DistanceX", -1, 1, 12, 3, 15.0),
    Sketcher.Constraint("DistanceX", -1, 1, 16, 3, 20.0),
    Sketcher.Constraint("DistanceX", -1, 1, 20, 3, 25.0),
    Sketcher.Constraint("DistanceY", -1, 1, 1, 3, 2.5),
    Sketcher.Constraint("DistanceX", -1, 1, 2, 3, 2.5),
    Sketcher.Constraint("DistanceX", -1, 1, 6, 3, 7.5),
    Sketcher.Constraint("DistanceX", -1, 1, 10, 3, 12.5),
    Sketcher.Constraint("DistanceX", -1, 1, 14, 3, 17.5),
    Sketcher.Constraint("DistanceX", -1, 1, 18, 3, 22.5),
    Sketcher.Constraint("DistanceX", -1, 1, 22, 3, 27.5),
    Sketcher.Constraint("DistanceX", -1, 1, 71, 3, 29.949998),
    Sketcher.Constraint("DistanceY", 68, 3, -1, 1, 2.485011),
    Sketcher.Constraint("DistanceX", 69, 3, -1, 1, 29.956931),
    Sketcher.Constraint("DistanceY", -1, 1, 69, 3, 0.036661),
    Sketcher.Constraint("DistanceY", -1, 1, 76, 3, 0.00955),
    Sketcher.Constraint("DistanceY", 77, 3, -1, 1, 2.49045),
    Sketcher.Constraint("DistanceY", -1, 1, 78, 3, 2.50955),
    Sketcher.Constraint("DistanceX", -1, 1, 68, 3, 0.020794),
    Sketcher.Constraint("DistanceX", -1, 1, 72, 3, 32.449998),
    Sketcher.Constraint("DistanceX", 76, 3, -1, 1, 32.466013),
    Sketcher.Constraint("DistanceX", 78, 3, -1, 1, 29.966013),
])
pocket1 = doc.addObject("PartDesign::Pocket", "Pocket")
body.addObject(pocket1)
pocket1.Profile = sketch5
pocket1.Length = 25
doc.recompute()

fillet = doc.addObject("PartDesign::Fillet", "Fillet")
body.addObject(fillet)
fillet.Base = (pocket1, edges_at(pocket1, [(-45.5, 0, 4), (41.5, 0, 4)]))
fillet.Radius = 1

doc.recompute()
